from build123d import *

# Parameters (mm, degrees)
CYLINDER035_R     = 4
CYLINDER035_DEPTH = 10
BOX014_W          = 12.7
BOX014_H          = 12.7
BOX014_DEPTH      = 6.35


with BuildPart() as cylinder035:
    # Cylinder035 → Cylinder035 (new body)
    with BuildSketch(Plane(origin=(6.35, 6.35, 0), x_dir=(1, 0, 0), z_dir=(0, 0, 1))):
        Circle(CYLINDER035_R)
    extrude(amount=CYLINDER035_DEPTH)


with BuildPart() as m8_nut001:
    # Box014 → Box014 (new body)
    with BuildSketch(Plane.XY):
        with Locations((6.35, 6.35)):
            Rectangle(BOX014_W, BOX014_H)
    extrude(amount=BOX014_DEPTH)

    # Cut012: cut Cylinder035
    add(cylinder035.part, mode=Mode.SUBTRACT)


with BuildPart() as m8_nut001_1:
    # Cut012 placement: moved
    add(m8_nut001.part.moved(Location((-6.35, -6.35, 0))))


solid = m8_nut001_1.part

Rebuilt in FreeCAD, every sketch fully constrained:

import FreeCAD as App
import Part
import Sketcher
from FreeCAD import Vector


def add_polygon(sketch, points):
    """Adds a closed chain of lines whose ends are joined by coincident constraints."""
    first, n = sketch.GeometryCount, len(points)
    for a, b in zip(points, points[1:] + points[:1]):
        sketch.addGeometry(Part.LineSegment(App.Vector(*a, 0), App.Vector(*b, 0)), False)
    for i in range(n):
        sketch.addConstraint(Sketcher.Constraint("Coincident", first + i, 2, first + (i + 1) % n, 1))

doc = App.newDocument("Part")
params = doc.addObject("Spreadsheet::Sheet", "Params")
for row, (alias, value) in enumerate([
    ("sketch1_diameter", "8 mm"),
    ("pad1_length", "10 mm"),
    ("sketch2_width", "12.7 mm"),
    ("pad2_length", "6.35 mm"),
], start=1):
    params.set(f"A{row}", alias)
    params.set(f"B{row}", "=" + value)
    params.setAlias(f"B{row}", alias)

body = doc.addObject("PartDesign::Body", "Body")

# Sketch on XY plane
sketch1 = doc.addObject("Sketcher::SketchObject", "Sketch")
body.addObject(sketch1)
sketch1.AttachmentSupport = (doc.XY_Plane, [""])
sketch1.MapMode = "FlatFace"
sketch1.addGeometry(Part.Circle(Vector(6.3, 6.3, 0), Vector(0, 0, 1), 4), False)
sketch1.addConstraint(Sketcher.Constraint("Diameter", 0, 8.0))
sketch1.addConstraint(Sketcher.Constraint("DistanceX", -1, 1, 0, 3, 6.35))
sketch1.addConstraint(Sketcher.Constraint("DistanceY", -1, 1, 0, 3, 6.35))
sketch1.setExpression("Constraints[0]", "Params.sketch1_diameter")
pad1 = doc.addObject("PartDesign::Pad", "Pad")
body.addObject(pad1)
pad1.Profile = sketch1
pad1.setExpression("Length", "Params.pad1_length")
body2 = doc.addObject("PartDesign::Body", "Body001")

# Sketch on XY plane
sketch2 = doc.addObject("Sketcher::SketchObject", "Sketch001")
body2.addObject(sketch2)
sketch2.AttachmentSupport = (doc.getObject("XY_Plane001"), [""])
sketch2.MapMode = "FlatFace"
add_polygon(sketch2, [(0, 13), (0, 0), (13, 0), (13, 13)])  # lines 0-3
sketch2.addConstraint(Sketcher.Constraint("Vertical", 0))
sketch2.addConstraint(Sketcher.Constraint("Horizontal", 1))
sketch2.addConstraint(Sketcher.Constraint("Vertical", 2))
sketch2.addConstraint(Sketcher.Constraint("Horizontal", 3))
sketch2.addConstraint(Sketcher.Constraint("Coincident", 0, 2, -1, 1))
sketch2.addConstraint(Sketcher.Constraint("Equal", 3, 0))
sketch2.addConstraint(Sketcher.Constraint("DistanceX", 1, 1, 1, 2, 12.7))
sketch2.setExpression("Constraints[10]", "Params.sketch2_width")
pad2 = doc.addObject("PartDesign::Pad", "Pad001")
body2.addObject(pad2)
pad2.Profile = sketch2
pad2.setExpression("Length", "Params.pad2_length")
doc.recompute()

boolean = doc.addObject("PartDesign::Boolean", "Boolean")
body2.addObject(boolean)
boolean.Type = "Cut"
boolean.addObjects([body])
body3 = doc.addObject("PartDesign::Body", "Body002")
doc.recompute()

body2.Placement = App.Placement(Vector(-6.35, -6.35, 0), App.Rotation(Vector(0, 0, 1), 0))
boolean2 = doc.addObject("PartDesign::Boolean", "Boolean001")
body3.addObject(boolean2)
boolean2.Type = "Fuse"
boolean2.addObjects([body2])

doc.recompute()
